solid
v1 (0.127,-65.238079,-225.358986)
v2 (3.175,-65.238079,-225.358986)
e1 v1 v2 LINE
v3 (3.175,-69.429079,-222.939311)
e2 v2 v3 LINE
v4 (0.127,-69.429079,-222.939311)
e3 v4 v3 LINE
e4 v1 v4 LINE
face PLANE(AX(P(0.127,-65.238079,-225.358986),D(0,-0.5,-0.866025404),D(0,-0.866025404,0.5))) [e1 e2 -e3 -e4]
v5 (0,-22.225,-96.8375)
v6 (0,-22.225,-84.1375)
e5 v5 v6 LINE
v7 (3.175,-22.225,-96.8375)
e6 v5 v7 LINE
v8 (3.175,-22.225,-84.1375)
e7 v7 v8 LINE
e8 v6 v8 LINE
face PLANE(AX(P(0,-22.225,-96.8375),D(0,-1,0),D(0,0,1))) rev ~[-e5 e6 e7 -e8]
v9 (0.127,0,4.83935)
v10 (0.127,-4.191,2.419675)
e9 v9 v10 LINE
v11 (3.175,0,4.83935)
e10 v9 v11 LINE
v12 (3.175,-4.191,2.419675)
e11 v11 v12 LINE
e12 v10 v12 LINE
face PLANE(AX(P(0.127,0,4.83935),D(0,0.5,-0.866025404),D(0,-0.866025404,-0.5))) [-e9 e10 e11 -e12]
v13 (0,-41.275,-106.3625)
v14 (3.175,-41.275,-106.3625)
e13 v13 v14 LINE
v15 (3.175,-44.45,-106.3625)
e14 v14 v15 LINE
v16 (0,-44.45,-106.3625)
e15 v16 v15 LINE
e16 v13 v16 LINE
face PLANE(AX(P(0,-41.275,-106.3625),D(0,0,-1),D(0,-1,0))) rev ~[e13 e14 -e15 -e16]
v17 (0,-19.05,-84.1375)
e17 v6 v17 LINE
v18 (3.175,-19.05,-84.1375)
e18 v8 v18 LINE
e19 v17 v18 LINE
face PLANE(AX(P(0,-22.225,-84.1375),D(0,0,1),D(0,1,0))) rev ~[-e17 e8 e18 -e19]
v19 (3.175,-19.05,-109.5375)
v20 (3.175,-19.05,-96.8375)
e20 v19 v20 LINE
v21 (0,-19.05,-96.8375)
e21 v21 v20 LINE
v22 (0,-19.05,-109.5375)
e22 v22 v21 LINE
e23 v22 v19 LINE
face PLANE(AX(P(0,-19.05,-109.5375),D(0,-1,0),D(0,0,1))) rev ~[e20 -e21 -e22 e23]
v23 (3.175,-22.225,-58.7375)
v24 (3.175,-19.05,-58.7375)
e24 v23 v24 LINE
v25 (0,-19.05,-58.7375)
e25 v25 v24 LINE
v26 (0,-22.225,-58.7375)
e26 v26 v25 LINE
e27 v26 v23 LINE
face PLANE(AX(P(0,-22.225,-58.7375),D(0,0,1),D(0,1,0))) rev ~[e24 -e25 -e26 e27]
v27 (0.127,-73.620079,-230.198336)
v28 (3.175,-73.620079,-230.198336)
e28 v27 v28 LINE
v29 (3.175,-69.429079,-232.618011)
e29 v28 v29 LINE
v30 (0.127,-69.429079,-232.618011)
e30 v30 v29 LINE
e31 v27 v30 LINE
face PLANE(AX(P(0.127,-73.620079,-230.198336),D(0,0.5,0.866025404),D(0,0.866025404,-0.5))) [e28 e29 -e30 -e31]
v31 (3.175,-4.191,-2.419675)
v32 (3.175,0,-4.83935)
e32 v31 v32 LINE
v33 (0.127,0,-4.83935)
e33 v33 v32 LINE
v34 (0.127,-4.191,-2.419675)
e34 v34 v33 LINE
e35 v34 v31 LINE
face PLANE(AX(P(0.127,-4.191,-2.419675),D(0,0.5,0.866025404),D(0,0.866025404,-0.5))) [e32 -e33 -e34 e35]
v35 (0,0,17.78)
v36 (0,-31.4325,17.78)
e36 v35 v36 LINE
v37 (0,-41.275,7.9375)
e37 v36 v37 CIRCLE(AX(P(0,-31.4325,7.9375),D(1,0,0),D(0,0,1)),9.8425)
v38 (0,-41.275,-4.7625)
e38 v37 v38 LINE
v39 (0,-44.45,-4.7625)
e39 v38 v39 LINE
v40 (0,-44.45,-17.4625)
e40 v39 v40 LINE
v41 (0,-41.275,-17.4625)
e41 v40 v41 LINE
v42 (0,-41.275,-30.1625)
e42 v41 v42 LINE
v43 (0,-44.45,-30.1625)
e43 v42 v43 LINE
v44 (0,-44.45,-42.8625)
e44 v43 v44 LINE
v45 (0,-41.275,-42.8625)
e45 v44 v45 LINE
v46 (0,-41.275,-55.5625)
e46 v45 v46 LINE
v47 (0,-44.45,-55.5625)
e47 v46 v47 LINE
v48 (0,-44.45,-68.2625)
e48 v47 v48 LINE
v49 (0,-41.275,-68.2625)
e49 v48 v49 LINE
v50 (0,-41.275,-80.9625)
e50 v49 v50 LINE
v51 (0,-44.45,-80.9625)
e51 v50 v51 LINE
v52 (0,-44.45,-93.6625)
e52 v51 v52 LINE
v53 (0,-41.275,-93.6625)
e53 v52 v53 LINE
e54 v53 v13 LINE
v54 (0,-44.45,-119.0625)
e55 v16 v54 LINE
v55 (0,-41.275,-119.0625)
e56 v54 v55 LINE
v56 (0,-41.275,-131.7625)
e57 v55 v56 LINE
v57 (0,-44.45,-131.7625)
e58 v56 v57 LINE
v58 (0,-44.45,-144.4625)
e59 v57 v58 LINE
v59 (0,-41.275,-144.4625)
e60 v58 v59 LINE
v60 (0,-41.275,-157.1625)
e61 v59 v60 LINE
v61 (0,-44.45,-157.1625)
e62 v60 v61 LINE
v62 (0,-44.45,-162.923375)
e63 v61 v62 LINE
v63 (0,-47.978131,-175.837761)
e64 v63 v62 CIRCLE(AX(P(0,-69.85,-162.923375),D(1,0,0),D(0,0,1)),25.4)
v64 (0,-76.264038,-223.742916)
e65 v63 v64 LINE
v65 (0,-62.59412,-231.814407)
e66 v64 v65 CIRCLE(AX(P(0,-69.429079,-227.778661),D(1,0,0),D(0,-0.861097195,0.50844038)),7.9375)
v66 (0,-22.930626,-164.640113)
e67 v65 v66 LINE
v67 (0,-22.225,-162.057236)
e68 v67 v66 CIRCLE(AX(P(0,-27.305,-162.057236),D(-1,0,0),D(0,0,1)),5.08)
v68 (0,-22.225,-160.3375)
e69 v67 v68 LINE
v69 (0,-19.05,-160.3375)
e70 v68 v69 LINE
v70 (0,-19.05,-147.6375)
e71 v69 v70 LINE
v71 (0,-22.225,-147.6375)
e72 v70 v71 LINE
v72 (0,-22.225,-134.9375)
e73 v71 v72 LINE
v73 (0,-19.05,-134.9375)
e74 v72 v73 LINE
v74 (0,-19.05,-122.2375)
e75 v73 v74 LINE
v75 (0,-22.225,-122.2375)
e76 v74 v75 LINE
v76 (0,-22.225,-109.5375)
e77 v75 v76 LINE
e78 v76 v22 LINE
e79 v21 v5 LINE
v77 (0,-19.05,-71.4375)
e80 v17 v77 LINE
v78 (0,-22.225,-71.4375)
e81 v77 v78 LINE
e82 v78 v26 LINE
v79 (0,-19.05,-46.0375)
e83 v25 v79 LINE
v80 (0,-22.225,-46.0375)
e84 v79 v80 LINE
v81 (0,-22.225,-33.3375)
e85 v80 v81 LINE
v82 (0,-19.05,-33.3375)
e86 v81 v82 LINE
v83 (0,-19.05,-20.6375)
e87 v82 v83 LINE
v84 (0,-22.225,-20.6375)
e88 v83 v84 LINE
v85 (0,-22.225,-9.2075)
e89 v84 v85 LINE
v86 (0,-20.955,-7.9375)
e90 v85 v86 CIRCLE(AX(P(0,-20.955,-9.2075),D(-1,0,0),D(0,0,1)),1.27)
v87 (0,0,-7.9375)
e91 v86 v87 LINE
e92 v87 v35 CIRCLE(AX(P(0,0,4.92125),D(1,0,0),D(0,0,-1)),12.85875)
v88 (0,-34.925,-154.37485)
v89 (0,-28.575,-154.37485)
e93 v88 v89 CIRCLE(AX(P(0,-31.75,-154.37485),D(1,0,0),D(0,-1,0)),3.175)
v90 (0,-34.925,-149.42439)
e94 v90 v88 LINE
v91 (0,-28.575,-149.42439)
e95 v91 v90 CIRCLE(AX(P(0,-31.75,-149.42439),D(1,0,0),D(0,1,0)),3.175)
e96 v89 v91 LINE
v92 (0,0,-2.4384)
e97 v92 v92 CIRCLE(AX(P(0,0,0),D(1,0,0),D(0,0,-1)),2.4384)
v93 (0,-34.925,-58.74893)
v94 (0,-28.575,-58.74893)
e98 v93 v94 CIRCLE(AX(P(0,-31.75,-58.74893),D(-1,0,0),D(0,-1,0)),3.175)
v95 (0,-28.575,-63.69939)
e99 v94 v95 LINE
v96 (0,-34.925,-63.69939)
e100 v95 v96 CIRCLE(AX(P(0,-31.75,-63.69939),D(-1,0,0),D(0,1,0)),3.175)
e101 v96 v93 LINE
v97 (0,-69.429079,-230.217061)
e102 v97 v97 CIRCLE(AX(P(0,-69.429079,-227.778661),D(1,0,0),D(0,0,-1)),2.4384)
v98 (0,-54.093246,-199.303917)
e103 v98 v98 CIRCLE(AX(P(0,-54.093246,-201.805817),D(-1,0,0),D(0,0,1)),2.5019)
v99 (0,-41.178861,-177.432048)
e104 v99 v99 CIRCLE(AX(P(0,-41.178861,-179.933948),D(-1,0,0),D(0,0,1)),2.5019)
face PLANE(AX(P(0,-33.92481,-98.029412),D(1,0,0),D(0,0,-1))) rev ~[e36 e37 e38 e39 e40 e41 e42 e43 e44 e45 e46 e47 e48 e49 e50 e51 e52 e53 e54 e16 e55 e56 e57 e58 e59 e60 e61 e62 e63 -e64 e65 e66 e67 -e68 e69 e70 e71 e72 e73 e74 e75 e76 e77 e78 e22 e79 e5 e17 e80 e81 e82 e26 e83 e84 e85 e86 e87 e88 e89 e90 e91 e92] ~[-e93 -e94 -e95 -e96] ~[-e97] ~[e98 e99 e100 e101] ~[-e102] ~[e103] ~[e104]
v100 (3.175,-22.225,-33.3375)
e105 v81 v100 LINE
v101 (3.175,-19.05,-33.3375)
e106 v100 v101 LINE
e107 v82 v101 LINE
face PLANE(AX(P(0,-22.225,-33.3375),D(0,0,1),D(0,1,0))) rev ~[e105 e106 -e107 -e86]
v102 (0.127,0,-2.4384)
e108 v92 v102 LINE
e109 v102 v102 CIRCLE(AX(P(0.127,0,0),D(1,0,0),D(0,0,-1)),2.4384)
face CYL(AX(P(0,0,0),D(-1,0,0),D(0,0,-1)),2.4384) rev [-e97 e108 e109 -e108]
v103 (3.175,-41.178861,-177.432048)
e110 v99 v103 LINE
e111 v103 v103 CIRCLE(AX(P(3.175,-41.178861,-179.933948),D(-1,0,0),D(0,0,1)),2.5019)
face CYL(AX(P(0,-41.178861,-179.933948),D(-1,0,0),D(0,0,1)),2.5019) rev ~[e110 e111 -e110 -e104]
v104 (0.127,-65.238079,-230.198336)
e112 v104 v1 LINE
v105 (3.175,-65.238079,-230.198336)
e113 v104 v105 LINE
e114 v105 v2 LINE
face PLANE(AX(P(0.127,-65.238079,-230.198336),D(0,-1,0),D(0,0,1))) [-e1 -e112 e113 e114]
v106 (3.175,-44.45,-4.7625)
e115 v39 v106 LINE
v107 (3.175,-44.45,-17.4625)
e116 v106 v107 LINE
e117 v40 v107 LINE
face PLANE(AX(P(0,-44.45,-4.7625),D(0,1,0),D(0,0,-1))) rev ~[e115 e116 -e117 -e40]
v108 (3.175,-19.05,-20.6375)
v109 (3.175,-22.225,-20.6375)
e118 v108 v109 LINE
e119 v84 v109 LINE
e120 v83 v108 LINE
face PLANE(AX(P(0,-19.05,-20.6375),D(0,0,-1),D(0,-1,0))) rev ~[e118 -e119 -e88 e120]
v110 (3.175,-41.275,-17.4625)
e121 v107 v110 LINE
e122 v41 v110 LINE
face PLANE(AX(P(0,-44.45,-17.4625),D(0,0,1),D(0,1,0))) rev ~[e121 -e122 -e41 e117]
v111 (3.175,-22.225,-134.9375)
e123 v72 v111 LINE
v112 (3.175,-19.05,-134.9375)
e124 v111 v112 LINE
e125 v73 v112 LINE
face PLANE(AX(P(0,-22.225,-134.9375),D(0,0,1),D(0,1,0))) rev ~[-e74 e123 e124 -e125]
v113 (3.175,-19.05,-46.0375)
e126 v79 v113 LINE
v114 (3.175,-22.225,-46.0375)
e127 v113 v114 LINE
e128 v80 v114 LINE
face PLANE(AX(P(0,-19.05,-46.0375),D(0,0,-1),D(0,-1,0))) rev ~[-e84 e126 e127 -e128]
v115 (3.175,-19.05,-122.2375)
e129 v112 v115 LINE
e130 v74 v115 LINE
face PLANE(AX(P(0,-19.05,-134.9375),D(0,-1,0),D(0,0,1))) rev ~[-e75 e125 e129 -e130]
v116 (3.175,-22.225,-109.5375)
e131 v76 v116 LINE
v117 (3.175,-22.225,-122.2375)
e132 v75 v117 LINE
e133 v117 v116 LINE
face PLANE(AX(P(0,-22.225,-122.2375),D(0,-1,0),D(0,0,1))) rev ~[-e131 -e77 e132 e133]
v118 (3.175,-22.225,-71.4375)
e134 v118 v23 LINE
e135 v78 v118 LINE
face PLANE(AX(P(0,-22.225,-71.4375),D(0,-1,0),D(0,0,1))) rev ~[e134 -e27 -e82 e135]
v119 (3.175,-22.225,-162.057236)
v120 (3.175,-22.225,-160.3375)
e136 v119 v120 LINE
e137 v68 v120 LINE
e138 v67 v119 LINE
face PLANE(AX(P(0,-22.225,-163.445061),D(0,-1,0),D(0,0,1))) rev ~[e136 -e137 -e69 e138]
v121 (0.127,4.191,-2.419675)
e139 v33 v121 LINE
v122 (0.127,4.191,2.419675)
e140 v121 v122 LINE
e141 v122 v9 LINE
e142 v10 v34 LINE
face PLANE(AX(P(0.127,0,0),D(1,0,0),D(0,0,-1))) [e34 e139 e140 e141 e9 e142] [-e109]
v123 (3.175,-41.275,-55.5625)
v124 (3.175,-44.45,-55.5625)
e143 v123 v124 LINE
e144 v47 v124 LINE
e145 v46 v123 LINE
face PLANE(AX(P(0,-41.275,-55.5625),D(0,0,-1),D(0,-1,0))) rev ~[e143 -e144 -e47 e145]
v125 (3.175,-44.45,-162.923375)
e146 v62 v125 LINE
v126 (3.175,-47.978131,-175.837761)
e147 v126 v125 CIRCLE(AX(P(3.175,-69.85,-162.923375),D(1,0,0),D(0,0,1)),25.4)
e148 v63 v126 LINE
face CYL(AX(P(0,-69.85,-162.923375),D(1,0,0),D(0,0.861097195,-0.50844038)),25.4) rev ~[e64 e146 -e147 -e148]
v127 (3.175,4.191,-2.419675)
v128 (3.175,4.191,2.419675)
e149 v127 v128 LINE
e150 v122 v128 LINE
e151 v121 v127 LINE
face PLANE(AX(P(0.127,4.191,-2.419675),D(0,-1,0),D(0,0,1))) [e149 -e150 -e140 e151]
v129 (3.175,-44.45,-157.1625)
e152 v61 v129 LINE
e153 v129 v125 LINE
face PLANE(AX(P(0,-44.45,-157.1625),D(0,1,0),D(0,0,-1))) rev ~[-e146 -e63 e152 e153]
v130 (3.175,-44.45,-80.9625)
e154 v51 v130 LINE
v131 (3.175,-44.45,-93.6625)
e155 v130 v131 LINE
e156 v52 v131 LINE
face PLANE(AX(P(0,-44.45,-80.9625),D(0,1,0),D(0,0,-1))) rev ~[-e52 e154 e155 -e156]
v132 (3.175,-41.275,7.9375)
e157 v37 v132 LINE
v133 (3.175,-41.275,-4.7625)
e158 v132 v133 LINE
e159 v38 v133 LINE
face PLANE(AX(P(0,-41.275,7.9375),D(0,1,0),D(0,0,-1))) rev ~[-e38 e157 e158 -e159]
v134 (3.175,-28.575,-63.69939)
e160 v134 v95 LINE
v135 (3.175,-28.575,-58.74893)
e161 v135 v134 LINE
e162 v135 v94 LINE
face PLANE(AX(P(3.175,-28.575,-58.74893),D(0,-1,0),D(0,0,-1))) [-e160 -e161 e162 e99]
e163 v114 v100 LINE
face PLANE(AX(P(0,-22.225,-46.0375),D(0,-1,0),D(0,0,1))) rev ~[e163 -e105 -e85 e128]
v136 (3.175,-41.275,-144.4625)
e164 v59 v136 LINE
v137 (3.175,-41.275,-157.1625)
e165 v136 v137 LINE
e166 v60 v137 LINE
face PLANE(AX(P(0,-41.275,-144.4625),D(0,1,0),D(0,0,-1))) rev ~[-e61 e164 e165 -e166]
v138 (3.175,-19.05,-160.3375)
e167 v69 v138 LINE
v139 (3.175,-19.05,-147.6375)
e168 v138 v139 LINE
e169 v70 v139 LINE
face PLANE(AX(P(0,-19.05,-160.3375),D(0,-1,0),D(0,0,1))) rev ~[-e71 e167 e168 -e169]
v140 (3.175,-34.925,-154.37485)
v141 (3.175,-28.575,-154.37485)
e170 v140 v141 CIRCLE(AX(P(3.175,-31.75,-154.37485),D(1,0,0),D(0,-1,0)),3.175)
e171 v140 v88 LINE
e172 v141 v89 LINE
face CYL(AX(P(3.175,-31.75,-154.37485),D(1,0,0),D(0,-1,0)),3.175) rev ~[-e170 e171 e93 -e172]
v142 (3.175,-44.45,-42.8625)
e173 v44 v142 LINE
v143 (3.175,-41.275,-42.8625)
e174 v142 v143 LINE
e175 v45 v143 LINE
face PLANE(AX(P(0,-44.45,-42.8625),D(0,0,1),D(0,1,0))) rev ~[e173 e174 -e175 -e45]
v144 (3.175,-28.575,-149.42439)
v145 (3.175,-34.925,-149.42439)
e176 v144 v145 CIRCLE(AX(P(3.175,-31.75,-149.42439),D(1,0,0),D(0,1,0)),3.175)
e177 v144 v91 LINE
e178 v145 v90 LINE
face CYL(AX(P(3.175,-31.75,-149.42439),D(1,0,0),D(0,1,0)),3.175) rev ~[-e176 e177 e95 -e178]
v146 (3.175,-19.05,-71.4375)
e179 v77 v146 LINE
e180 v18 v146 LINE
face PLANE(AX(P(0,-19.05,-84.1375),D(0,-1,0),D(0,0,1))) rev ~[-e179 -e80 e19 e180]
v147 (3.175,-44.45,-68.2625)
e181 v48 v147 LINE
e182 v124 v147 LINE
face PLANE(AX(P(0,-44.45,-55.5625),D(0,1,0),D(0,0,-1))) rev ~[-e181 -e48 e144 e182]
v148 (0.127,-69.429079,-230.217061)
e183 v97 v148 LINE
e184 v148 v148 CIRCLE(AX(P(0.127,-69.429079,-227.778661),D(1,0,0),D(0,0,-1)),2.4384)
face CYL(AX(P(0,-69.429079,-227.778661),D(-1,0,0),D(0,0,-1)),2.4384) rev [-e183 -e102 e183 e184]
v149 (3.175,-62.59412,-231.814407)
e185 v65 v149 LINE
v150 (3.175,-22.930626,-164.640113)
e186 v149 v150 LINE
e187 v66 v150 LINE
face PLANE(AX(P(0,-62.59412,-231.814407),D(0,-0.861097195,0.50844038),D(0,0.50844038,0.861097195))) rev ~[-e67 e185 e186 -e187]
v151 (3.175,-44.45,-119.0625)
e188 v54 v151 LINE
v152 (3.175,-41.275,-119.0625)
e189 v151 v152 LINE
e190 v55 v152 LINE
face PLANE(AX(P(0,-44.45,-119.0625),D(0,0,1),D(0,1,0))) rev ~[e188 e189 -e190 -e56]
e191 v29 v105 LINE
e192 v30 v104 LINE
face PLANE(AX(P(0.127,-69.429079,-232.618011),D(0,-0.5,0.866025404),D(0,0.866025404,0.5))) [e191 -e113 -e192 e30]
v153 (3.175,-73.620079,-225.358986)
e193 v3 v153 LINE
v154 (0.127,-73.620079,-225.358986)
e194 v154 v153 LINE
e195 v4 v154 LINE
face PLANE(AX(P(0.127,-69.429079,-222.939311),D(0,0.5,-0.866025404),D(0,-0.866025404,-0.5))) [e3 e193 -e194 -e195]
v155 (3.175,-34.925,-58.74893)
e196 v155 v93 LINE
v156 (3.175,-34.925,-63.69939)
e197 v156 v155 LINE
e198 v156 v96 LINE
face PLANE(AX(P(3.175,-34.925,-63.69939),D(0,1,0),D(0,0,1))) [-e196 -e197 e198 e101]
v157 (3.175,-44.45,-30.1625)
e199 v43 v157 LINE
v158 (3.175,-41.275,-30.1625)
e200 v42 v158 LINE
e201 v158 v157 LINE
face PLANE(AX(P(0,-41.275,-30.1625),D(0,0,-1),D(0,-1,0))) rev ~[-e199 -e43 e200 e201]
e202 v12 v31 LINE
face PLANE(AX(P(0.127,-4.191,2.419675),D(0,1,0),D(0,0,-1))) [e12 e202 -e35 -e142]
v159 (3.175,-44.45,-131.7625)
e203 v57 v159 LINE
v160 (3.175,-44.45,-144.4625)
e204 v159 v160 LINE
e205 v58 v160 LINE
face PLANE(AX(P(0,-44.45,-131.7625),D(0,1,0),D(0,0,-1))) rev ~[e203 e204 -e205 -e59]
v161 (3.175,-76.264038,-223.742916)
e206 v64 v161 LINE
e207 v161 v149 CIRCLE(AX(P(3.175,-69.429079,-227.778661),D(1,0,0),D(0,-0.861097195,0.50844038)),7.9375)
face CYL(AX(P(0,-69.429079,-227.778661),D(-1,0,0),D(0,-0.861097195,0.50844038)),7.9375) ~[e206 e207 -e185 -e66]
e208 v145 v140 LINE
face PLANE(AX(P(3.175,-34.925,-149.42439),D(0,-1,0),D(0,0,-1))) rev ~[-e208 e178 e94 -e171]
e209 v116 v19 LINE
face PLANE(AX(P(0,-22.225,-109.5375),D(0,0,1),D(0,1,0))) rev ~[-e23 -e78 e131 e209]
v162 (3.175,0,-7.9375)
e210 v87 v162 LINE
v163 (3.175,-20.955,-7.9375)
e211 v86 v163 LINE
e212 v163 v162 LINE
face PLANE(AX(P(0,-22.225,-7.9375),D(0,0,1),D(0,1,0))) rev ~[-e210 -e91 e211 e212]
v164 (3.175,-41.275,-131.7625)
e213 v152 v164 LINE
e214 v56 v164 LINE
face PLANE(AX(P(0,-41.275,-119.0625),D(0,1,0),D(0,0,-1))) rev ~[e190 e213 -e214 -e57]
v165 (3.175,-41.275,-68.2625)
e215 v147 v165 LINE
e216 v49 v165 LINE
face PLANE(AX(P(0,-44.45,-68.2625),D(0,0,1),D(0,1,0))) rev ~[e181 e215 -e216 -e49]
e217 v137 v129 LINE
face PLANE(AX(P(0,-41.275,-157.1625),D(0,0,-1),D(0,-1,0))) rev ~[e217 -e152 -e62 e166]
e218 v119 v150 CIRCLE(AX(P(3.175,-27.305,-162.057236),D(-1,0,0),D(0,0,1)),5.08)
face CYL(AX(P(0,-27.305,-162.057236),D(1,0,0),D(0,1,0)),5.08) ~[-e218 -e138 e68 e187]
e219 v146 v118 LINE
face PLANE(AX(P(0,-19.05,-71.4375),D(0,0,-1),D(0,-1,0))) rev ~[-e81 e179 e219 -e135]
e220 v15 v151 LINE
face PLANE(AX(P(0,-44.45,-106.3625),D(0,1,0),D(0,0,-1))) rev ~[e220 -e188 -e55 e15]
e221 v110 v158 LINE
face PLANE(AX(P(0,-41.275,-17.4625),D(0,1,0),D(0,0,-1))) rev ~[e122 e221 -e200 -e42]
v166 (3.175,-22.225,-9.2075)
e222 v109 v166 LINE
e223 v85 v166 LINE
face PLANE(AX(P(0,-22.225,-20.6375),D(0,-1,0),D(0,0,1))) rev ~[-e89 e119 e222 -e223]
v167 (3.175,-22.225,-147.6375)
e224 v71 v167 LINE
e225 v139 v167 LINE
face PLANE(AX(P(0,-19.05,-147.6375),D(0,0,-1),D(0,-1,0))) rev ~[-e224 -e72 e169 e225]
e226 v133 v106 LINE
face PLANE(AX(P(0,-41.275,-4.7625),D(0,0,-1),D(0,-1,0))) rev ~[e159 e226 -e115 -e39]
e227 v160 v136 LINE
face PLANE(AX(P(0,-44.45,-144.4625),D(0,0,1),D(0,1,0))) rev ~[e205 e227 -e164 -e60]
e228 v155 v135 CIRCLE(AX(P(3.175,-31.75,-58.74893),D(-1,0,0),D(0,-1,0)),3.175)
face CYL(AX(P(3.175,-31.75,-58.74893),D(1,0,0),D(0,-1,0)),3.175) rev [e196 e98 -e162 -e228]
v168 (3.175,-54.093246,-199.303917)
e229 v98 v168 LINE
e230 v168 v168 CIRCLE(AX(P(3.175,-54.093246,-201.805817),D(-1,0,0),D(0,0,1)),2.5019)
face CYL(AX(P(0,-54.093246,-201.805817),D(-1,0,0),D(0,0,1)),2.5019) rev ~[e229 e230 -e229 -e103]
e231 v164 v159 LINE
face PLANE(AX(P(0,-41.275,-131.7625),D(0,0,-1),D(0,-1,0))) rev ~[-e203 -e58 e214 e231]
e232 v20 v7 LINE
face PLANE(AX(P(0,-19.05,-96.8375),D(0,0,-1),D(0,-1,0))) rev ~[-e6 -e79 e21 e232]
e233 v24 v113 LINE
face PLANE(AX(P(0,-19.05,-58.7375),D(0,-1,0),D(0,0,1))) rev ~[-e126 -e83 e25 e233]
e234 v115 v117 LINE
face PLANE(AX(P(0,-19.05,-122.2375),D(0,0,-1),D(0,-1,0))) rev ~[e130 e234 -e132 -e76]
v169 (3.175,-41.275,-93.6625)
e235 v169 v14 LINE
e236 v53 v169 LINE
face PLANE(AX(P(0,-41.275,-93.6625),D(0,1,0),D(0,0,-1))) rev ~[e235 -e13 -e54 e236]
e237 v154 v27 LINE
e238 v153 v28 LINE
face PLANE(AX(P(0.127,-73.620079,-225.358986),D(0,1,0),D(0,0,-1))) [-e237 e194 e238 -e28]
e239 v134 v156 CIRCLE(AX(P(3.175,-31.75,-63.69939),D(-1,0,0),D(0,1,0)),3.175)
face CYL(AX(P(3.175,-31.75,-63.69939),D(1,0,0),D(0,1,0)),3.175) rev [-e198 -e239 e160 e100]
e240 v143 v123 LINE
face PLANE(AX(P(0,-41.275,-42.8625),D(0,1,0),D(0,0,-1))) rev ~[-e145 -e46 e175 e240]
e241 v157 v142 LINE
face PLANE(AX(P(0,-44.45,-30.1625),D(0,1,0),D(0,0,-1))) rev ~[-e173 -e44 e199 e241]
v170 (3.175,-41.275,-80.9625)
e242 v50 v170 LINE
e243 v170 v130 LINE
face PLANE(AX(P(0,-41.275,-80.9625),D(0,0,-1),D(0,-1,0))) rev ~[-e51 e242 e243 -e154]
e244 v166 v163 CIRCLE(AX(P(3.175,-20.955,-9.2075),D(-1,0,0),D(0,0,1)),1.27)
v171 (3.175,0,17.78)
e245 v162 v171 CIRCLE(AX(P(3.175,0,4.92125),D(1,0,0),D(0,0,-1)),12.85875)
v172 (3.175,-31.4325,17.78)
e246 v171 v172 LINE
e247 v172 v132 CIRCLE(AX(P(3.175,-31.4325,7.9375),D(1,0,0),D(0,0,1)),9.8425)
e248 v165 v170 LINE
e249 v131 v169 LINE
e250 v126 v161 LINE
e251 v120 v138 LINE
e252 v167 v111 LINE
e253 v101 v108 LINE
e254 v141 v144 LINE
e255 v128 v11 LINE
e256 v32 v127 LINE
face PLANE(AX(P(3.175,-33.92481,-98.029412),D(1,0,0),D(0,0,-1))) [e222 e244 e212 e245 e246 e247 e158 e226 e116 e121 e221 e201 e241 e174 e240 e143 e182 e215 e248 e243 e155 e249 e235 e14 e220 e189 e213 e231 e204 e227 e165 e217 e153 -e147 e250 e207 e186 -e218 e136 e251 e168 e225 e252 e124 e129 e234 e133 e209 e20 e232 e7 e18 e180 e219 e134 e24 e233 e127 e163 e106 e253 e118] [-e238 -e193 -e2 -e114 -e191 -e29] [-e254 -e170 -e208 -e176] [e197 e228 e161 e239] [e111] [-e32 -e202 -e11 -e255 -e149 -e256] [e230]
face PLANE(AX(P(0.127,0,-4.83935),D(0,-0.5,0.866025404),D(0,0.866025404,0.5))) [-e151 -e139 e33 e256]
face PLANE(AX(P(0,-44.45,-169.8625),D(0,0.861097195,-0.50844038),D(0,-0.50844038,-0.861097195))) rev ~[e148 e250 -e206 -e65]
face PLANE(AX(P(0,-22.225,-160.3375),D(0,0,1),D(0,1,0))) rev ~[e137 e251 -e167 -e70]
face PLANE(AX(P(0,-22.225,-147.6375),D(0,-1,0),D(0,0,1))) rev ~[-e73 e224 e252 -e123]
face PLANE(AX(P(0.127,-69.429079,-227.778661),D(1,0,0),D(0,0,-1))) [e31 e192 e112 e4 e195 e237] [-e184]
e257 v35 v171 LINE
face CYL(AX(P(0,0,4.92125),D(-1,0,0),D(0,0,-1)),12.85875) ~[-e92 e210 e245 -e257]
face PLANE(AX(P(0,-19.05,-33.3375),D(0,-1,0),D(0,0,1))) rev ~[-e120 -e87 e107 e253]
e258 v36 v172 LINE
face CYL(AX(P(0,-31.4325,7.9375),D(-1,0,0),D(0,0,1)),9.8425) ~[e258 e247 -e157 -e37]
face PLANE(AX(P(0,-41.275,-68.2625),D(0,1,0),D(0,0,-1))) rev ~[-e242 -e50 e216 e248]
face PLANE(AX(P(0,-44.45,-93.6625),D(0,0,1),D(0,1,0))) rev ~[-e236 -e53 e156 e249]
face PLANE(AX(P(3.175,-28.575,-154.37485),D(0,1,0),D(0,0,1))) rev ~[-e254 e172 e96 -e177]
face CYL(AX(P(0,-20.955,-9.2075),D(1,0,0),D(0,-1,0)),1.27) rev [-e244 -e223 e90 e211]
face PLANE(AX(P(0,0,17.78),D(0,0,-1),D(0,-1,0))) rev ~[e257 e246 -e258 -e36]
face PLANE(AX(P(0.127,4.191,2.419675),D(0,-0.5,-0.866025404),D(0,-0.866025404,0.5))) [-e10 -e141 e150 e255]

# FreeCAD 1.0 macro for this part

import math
import FreeCAD as App
import Part
import Sketcher
Q = App.Units.Quantity


def edges_at(feature, points):
    """Names of the edges that pass closest to the given points."""
    edges = feature.Shape.Edges
    near = lambda p: min(range(len(edges)), key=lambda i: edges[i].distToShape(Part.Vertex(*p))[0])
    return sorted({f"Edge{near(p) + 1}" for p in points})


def add_polygon(sketch, points):
    """Adds a closed chain of lines whose ends are joined by coincident constraints."""
    first, n = sketch.GeometryCount, len(points)
    for a, b in zip(points, points[1:] + points[:1]):
        sketch.addGeometry(Part.LineSegment(App.Vector(*a, 0), App.Vector(*b, 0)), False)
    for i in range(n):
        sketch.addConstraint(Sketcher.Constraint("Coincident", first + i, 2, first + (i + 1) % n, 1))

doc = App.newDocument("Part")
params = doc.addObject("Spreadsheet::Sheet", "Params")
for row, (alias, value) in enumerate([
    ("sketch1_diameter", "0.192 in"),
    ("sketch1_height", "0.5 in"),
    ("sketch1_radius", "0.3125 in"),
    ("sketch1_width", "0.125 in"),
    ("sketch1_width2", "0.875 in"),
    ("pad1_length", "0.125 in"),
    ("sketch2_diameter", "0.192 in"),
    ("pocket1_length", "0.12 in"),
    ("sketch3_diameter", "0.192 in"),
    ("pocket2_length", "0.12 in"),
    ("sketch4_diameter", "0.197 in"),
    ("sketch5_radius", "0.125 in"),
    ("pocket4_length", "0.125 in"),
    ("fillet_radius", "1 in"),
    ("fillet2_radius", "0.05 in"),
    ("fillet3_radius", "0.2 in"),
], start=1):
    params.set(f"A{row}", alias)
    params.set(f"B{row}", "=" + value)
    params.setAlias(f"B{row}", alias)

body = doc.addObject("PartDesign::Body", "Body")

# Sketch on YZ plane
sketch1 = body.newObject("Sketcher::SketchObject", "Sketch")
sketch1.AttachmentSupport = (doc.getObject("YZ_Plane"), [""])
sketch1.MapMode = "FlatFace"
sketch1.addGeometry([
    Part.ArcOfCircle(Part.Circle(App.Vector(-69.4, -227.8, 0), App.Vector(0, 0, 1), 7.9), math.radians(149), math.radians(329)),  # 0
    Part.LineSegment(App.Vector(-62.6, -231.8, 0), App.Vector(-22.2, -163.4, 0)),  # 1
    Part.LineSegment(App.Vector(-22.2, -163.4, 0), App.Vector(-22.2, -160.3, 0)),  # 2
    Part.LineSegment(App.Vector(-22.2, -160.3, 0), App.Vector(-19.1, -160.3, 0)),  # 3
    Part.LineSegment(App.Vector(-19.1, -160.3, 0), App.Vector(-19.1, -147.6, 0)),  # 4
    Part.LineSegment(App.Vector(-19.1, -147.6, 0), App.Vector(-22.2, -147.6, 0)),  # 5
    Part.LineSegment(App.Vector(-22.2, -147.6, 0), App.Vector(-22.2, -134.9, 0)),  # 6
    Part.LineSegment(App.Vector(-22.2, -134.9, 0), App.Vector(-19.1, -134.9, 0)),  # 7
    Part.LineSegment(App.Vector(-19.1, -134.9, 0), App.Vector(-19.1, -122.2, 0)),  # 8
    Part.LineSegment(App.Vector(-19.1, -122.2, 0), App.Vector(-22.2, -122.2, 0)),  # 9
    Part.LineSegment(App.Vector(-22.2, -122.2, 0), App.Vector(-22.2, -109.5, 0)),  # 10
    Part.LineSegment(App.Vector(-22.2, -109.5, 0), App.Vector(-19.1, -109.5, 0)),  # 11
    Part.LineSegment(App.Vector(-19.1, -109.5, 0), App.Vector(-19.1, -96.8, 0)),  # 12
    Part.LineSegment(App.Vector(-19.1, -96.8, 0), App.Vector(-22.2, -96.8, 0)),  # 13
    Part.LineSegment(App.Vector(-22.2, -96.8, 0), App.Vector(-22.2, -84.1, 0)),  # 14
    Part.LineSegment(App.Vector(-22.2, -84.1, 0), App.Vector(-19.1, -84.1, 0)),  # 15
    Part.LineSegment(App.Vector(-19.1, -84.1, 0), App.Vector(-19.1, -71.4, 0)),  # 16
    Part.LineSegment(App.Vector(-19.1, -71.4, 0), App.Vector(-22.2, -71.4, 0)),  # 17
    Part.LineSegment(App.Vector(-22.2, -71.4, 0), App.Vector(-22.2, -58.7, 0)),  # 18
    Part.LineSegment(App.Vector(-22.2, -58.7, 0), App.Vector(-19.1, -58.7, 0)),  # 19
    Part.LineSegment(App.Vector(-19.1, -58.7, 0), App.Vector(-19.1, -46, 0)),  # 20
    Part.LineSegment(App.Vector(-19.1, -46, 0), App.Vector(-22.2, -46, 0)),  # 21
    Part.LineSegment(App.Vector(-22.2, -46, 0), App.Vector(-22.2, -33.3, 0)),  # 22
    Part.LineSegment(App.Vector(-22.2, -33.3, 0), App.Vector(-19.1, -33.3, 0)),  # 23
    Part.LineSegment(App.Vector(-19.1, -33.3, 0), App.Vector(-19.1, -20.6, 0)),  # 24
    Part.LineSegment(App.Vector(-19.1, -20.6, 0), App.Vector(-22.2, -20.6, 0)),  # 25
    Part.LineSegment(App.Vector(-22.2, -20.6, 0), App.Vector(-22.2, -7.9, 0)),  # 26
    Part.LineSegment(App.Vector(-22.2, -7.9, 0), App.Vector(0, -7.9, 0)),  # 27
    Part.ArcOfCircle(Part.Circle(App.Vector(0, 4.9, 0), App.Vector(0, 0, 1), 12.9), math.radians(-90), math.radians(90)),  # 28
    Part.LineSegment(App.Vector(0, 17.8, 0), App.Vector(-31.4, 17.8, 0)),  # 29
    Part.ArcOfCircle(Part.Circle(App.Vector(-31.4, 7.9, 0), App.Vector(0, 0, 1), 9.8), math.radians(90), math.radians(180)),  # 30
    Part.LineSegment(App.Vector(-41.3, 7.9, 0), App.Vector(-41.3, -4.8, 0)),  # 31
    Part.LineSegment(App.Vector(-41.3, -4.8, 0), App.Vector(-44.5, -4.8, 0)),  # 32
    Part.LineSegment(App.Vector(-44.5, -4.8, 0), App.Vector(-44.5, -17.5, 0)),  # 33
    Part.LineSegment(App.Vector(-44.5, -17.5, 0), App.Vector(-41.3, -17.5, 0)),  # 34
    Part.LineSegment(App.Vector(-41.3, -17.5, 0), App.Vector(-41.3, -30.2, 0)),  # 35
    Part.LineSegment(App.Vector(-41.3, -30.2, 0), App.Vector(-44.5, -30.2, 0)),  # 36
    Part.LineSegment(App.Vector(-44.5, -30.2, 0), App.Vector(-44.5, -42.9, 0)),  # 37
    Part.LineSegment(App.Vector(-44.5, -42.9, 0), App.Vector(-41.3, -42.9, 0)),  # 38
    Part.LineSegment(App.Vector(-41.3, -42.9, 0), App.Vector(-41.3, -55.6, 0)),  # 39
    Part.LineSegment(App.Vector(-41.3, -55.6, 0), App.Vector(-44.5, -55.6, 0)),  # 40
    Part.LineSegment(App.Vector(-44.5, -55.6, 0), App.Vector(-44.5, -68.3, 0)),  # 41
    Part.LineSegment(App.Vector(-44.5, -68.3, 0), App.Vector(-41.3, -68.3, 0)),  # 42
    Part.LineSegment(App.Vector(-41.3, -68.3, 0), App.Vector(-41.3, -81, 0)),  # 43
    Part.LineSegment(App.Vector(-41.3, -81, 0), App.Vector(-44.5, -81, 0)),  # 44
    Part.LineSegment(App.Vector(-44.5, -81, 0), App.Vector(-44.5, -93.7, 0)),  # 45
    Part.LineSegment(App.Vector(-44.5, -93.7, 0), App.Vector(-41.3, -93.7, 0)),  # 46
    Part.LineSegment(App.Vector(-41.3, -93.7, 0), App.Vector(-41.3, -106.4, 0)),  # 47
    Part.LineSegment(App.Vector(-41.3, -106.4, 0), App.Vector(-44.5, -106.4, 0)),  # 48
    Part.LineSegment(App.Vector(-44.5, -106.4, 0), App.Vector(-44.5, -119.1, 0)),  # 49
    Part.LineSegment(App.Vector(-44.5, -119.1, 0), App.Vector(-41.3, -119.1, 0)),  # 50
    Part.LineSegment(App.Vector(-41.3, -119.1, 0), App.Vector(-41.3, -131.8, 0)),  # 51
    Part.LineSegment(App.Vector(-41.3, -131.8, 0), App.Vector(-44.5, -131.8, 0)),  # 52
    Part.LineSegment(App.Vector(-44.5, -131.8, 0), App.Vector(-44.5, -144.5, 0)),  # 53
    Part.LineSegment(App.Vector(-44.5, -144.5, 0), App.Vector(-41.3, -144.5, 0)),  # 54
    Part.LineSegment(App.Vector(-41.3, -144.5, 0), App.Vector(-41.3, -157.2, 0)),  # 55
    Part.LineSegment(App.Vector(-41.3, -157.2, 0), App.Vector(-44.5, -157.2, 0)),  # 56
    Part.LineSegment(App.Vector(-44.5, -157.2, 0), App.Vector(-44.5, -169.9, 0)),  # 57
    Part.LineSegment(App.Vector(-44.5, -169.9, 0), App.Vector(-76.3, -223.7, 0)),  # 58
    Part.Circle(App.Vector(-69.4, -227.8, 0), App.Vector(0, 0, 1), 2.4),  # 59
    Part.Circle(App.Vector(0, 0, 0), App.Vector(0, 0, 1), 2.4),  # 60
], False)
sketch1.addConstraint([
    Sketcher.Constraint("Tangent", 0, 2, 1, 1),
    Sketcher.Constraint("Coincident", 1, 2, 2, 1),
    Sketcher.Constraint("Coincident", 2, 2, 3, 1),
    Sketcher.Constraint("Coincident", 3, 2, 4, 1),
    Sketcher.Constraint("Coincident", 4, 2, 5, 1),
    Sketcher.Constraint("Coincident", 5, 2, 6, 1),
    Sketcher.Constraint("Coincident", 6, 2, 7, 1),
    Sketcher.Constraint("Coincident", 7, 2, 8, 1),
    Sketcher.Constraint("Coincident", 8, 2, 9, 1),
    Sketcher.Constraint("Coincident", 9, 2, 10, 1),
    Sketcher.Constraint("Coincident", 10, 2, 11, 1),
    Sketcher.Constraint("Coincident", 11, 2, 12, 1),
    Sketcher.Constraint("Coincident", 12, 2, 13, 1),
    Sketcher.Constraint("Coincident", 13, 2, 14, 1),
    Sketcher.Constraint("Coincident", 14, 2, 15, 1),
    Sketcher.Constraint("Coincident", 15, 2, 16, 1),
    Sketcher.Constraint("Coincident", 16, 2, 17, 1),
    Sketcher.Constraint("Coincident", 17, 2, 18, 1),
    Sketcher.Constraint("Coincident", 18, 2, 19, 1),
    Sketcher.Constraint("Coincident", 19, 2, 20, 1),
    Sketcher.Constraint("Coincident", 20, 2, 21, 1),
    Sketcher.Constraint("Coincident", 21, 2, 22, 1),
    Sketcher.Constraint("Coincident", 22, 2, 23, 1),
    Sketcher.Constraint("Coincident", 23, 2, 24, 1),
    Sketcher.Constraint("Coincident", 24, 2, 25, 1),
    Sketcher.Constraint("Coincident", 25, 2, 26, 1),
    Sketcher.Constraint("Coincident", 26, 2, 27, 1),
    Sketcher.Constraint("Tangent", 27, 2, 28, 1),
    Sketcher.Constraint("Tangent", 28, 2, 29, 1),
    Sketcher.Constraint("Tangent", 29, 2, 30, 1),
    Sketcher.Constraint("Tangent", 30, 2, 31, 1),
    Sketcher.Constraint("Coincident", 31, 2, 32, 1),
    Sketcher.Constraint("Coincident", 32, 2, 33, 1),
    Sketcher.Constraint("Coincident", 33, 2, 34, 1),
    Sketcher.Constraint("Coincident", 34, 2, 35, 1),
    Sketcher.Constraint("Coincident", 35, 2, 36, 1),
    Sketcher.Constraint("Coincident", 36, 2, 37, 1),
    Sketcher.Constraint("Coincident", 37, 2, 38, 1),
    Sketcher.Constraint("Coincident", 38, 2, 39, 1),
    Sketcher.Constraint("Coincident", 39, 2, 40, 1),
    Sketcher.Constraint("Coincident", 40, 2, 41, 1),
    Sketcher.Constraint("Coincident", 41, 2, 42, 1),
    Sketcher.Constraint("Coincident", 42, 2, 43, 1),
    Sketcher.Constraint("Coincident", 43, 2, 44, 1),
    Sketcher.Constraint("Coincident", 44, 2, 45, 1),
    Sketcher.Constraint("Coincident", 45, 2, 46, 1),
    Sketcher.Constraint("Coincident", 46, 2, 47, 1),
    Sketcher.Constraint("Coincident", 47, 2, 48, 1),
    Sketcher.Constraint("Coincident", 48, 2, 49, 1),
    Sketcher.Constraint("Coincident", 49, 2, 50, 1),
    Sketcher.Constraint("Coincident", 50, 2, 51, 1),
    Sketcher.Constraint("Coincident", 51, 2, 52, 1),
    Sketcher.Constraint("Coincident", 52, 2, 53, 1),
    Sketcher.Constraint("Coincident", 53, 2, 54, 1),
    Sketcher.Constraint("Coincident", 54, 2, 55, 1),
    Sketcher.Constraint("Coincident", 55, 2, 56, 1),
    Sketcher.Constraint("Coincident", 56, 2, 57, 1),
    Sketcher.Constraint("Coincident", 57, 2, 58, 1),
    Sketcher.Constraint("Tangent", 58, 2, 0, 1),
    Sketcher.Constraint("Vertical", 2),
    Sketcher.Constraint("Horizontal", 3),
    Sketcher.Constraint("Vertical", 4),
    Sketcher.Constraint("Horizontal", 5),
    Sketcher.Constraint("Vertical", 6),
    Sketcher.Constraint("Horizontal", 7),
    Sketcher.Constraint("Vertical", 8),
    Sketcher.Constraint("Horizontal", 9),
    Sketcher.Constraint("Vertical", 10),
    Sketcher.Constraint("Horizontal", 11),
    Sketcher.Constraint("Vertical", 12),
    Sketcher.Constraint("Horizontal", 13),
    Sketcher.Constraint("Vertical", 14),
    Sketcher.Constraint("Horizontal", 15),
    Sketcher.Constraint("Vertical", 16),
    Sketcher.Constraint("Horizontal", 17),
    Sketcher.Constraint("Vertical", 18),
    Sketcher.Constraint("Horizontal", 19),
    Sketcher.Constraint("Vertical", 20),
    Sketcher.Constraint("Horizontal", 21),
    Sketcher.Constraint("Vertical", 22),
    Sketcher.Constraint("Horizontal", 23),
    Sketcher.Constraint("Vertical", 24),
    Sketcher.Constraint("Horizontal", 25),
    Sketcher.Constraint("Vertical", 26),
    Sketcher.Constraint("Horizontal", 27),
    Sketcher.Constraint("Horizontal", 29),
    Sketcher.Constraint("Vertical", 31),
    Sketcher.Constraint("Horizontal", 32),
    Sketcher.Constraint("Vertical", 33),
    Sketcher.Constraint("Horizontal", 34),
    Sketcher.Constraint("Vertical", 35),
    Sketcher.Constraint("Horizontal", 36),
    Sketcher.Constraint("Vertical", 37),
    Sketcher.Constraint("Horizontal", 38),
    Sketcher.Constraint("Vertical", 39),
    Sketcher.Constraint("Horizontal", 40),
    Sketcher.Constraint("Vertical", 41),
    Sketcher.Constraint("Horizontal", 42),
    Sketcher.Constraint("Vertical", 43),
    Sketcher.Constraint("Horizontal", 44),
    Sketcher.Constraint("Vertical", 45),
    Sketcher.Constraint("Horizontal", 46),
    Sketcher.Constraint("Vertical", 47),
    Sketcher.Constraint("Horizontal", 48),
    Sketcher.Constraint("Vertical", 49),
    Sketcher.Constraint("Horizontal", 50),
    Sketcher.Constraint("Vertical", 51),
    Sketcher.Constraint("Horizontal", 52),
    Sketcher.Constraint("Vertical", 53),
    Sketcher.Constraint("Horizontal", 54),
    Sketcher.Constraint("Vertical", 55),
    Sketcher.Constraint("Horizontal", 56),
    Sketcher.Constraint("Vertical", 57),
    Sketcher.Constraint("Coincident", 60, 3, -1, 1),
    Sketcher.Constraint("Coincident", 59, 3, 0, 3),
    Sketcher.Constraint("Equal", 59, 60),
    Sketcher.Constraint("PointOnObject", 28, 3, -2),
    Sketcher.Constraint("Parallel", 1, 58),
    Sketcher.Constraint("Vertical", 2, 2, 5, 2),
    Sketcher.Constraint("Vertical", 4, 2, 7, 2),
    Sketcher.Constraint("Vertical", 6, 2, 9, 2),
    Sketcher.Constraint("Vertical", 8, 2, 11, 2),
    Sketcher.Constraint("Vertical", 10, 2, 13, 2),
    Sketcher.Constraint("Vertical", 12, 2, 15, 2),
    Sketcher.Constraint("Vertical", 14, 2, 17, 2),
    Sketcher.Constraint("Vertical", 16, 2, 19, 2),
    Sketcher.Constraint("Vertical", 18, 2, 21, 2),
    Sketcher.Constraint("Vertical", 20, 2, 23, 2),
    Sketcher.Constraint("Vertical", 22, 2, 25, 2),
    Sketcher.Constraint("Vertical", 31, 2, 34, 2),
    Sketcher.Constraint("Vertical", 33, 2, 36, 2),
    Sketcher.Constraint("Vertical", 35, 2, 38, 2),
    Sketcher.Constraint("Vertical", 37, 2, 40, 2),
    Sketcher.Constraint("Vertical", 39, 2, 42, 2),
    Sketcher.Constraint("Vertical", 41, 2, 44, 2),
    Sketcher.Constraint("Vertical", 43, 2, 46, 2),
    Sketcher.Constraint("Vertical", 45, 2, 48, 2),
    Sketcher.Constraint("Vertical", 47, 2, 50, 2),
    Sketcher.Constraint("Vertical", 49, 2, 52, 2),
    Sketcher.Constraint("Vertical", 51, 2, 54, 2),
    Sketcher.Constraint("Vertical", 53, 2, 56, 2),
    Sketcher.Constraint("Equal", 25, 32),
    Sketcher.Constraint("Equal", 4, 6),
    Sketcher.Constraint("Equal", 6, 8),
    Sketcher.Constraint("Equal", 8, 10),
    Sketcher.Constraint("Equal", 10, 12),
    Sketcher.Constraint("Equal", 12, 14),
    Sketcher.Constraint("Equal", 14, 16),
    Sketcher.Constraint("Equal", 16, 18),
    Sketcher.Constraint("Equal", 18, 20),
    Sketcher.Constraint("Equal", 20, 22),
    Sketcher.Constraint("Equal", 22, 24),
    Sketcher.Constraint("Equal", 24, 26),
    Sketcher.Constraint("Equal", 26, 31),
    Sketcher.Constraint("Equal", 31, 33),
    Sketcher.Constraint("Equal", 33, 35),
    Sketcher.Constraint("Equal", 35, 37),
    Sketcher.Constraint("Equal", 37, 39),
    Sketcher.Constraint("Equal", 39, 41),
    Sketcher.Constraint("Equal", 41, 43),
    Sketcher.Constraint("Equal", 43, 45),
    Sketcher.Constraint("Equal", 45, 47),
    Sketcher.Constraint("Equal", 47, 49),
    Sketcher.Constraint("Equal", 49, 51),
    Sketcher.Constraint("Equal", 51, 53),
    Sketcher.Constraint("Equal", 53, 55),
    Sketcher.Constraint("Equal", 55, 57),
    Sketcher.Constraint("Diameter", 59, Q("0.192 in")),
    Sketcher.Constraint("DistanceY", 4, 1, 4, 2, Q("0.5 in")),
    Sketcher.Constraint("Radius", 0, Q("0.3125 in")),
    Sketcher.Constraint("DistanceY", -1, 1, 28, 2, Q("0.7 in")),
    Sketcher.Constraint("Radius", 30, Q("0.3875 in")),
    Sketcher.Constraint("DistanceX", 3, 1, 3, 2, Q("0.125 in")),
    Sketcher.Constraint("DistanceX", 27, 1, 27, 2, Q("0.875 in")),
    Sketcher.Constraint("DistanceX", 32, 2, -1, 1, Q("1.75 in")),
    Sketcher.Constraint("Angle", 1, Q("59.44 deg")),
    Sketcher.Constraint("DistanceY", 2, 2, -1, 1, Q("6.3125 in")),
    Sketcher.Constraint("DistanceX", 0, 3, -1, 1, Q("69.429079 mm")),
])
sketch1.setExpression("Constraints[167]", "Params.sketch1_diameter")
sketch1.setExpression("Constraints[168]", "Params.sketch1_height")
sketch1.setExpression("Constraints[169]", "Params.sketch1_radius")
sketch1.setExpression("Constraints[172]", "Params.sketch1_width")
sketch1.setExpression("Constraints[173]", "Params.sketch1_width2")
pad1 = body.newObject("PartDesign::Pad", "Pad")
pad1.Profile = sketch1
pad1.setExpression("Length", "Params.pad1_length")

# Sketch on YZ plane
sketch2 = body.newObject("Sketcher::SketchObject", "Sketch001")
sketch2.AttachmentSupport = (doc.getObject("YZ_Plane"), [""])
sketch2.MapMode = "FlatFace"
sketch2.AttachmentOffset = App.Placement(App.Vector(0, 0, 0.005 * 25.4), App.Rotation())
add_polygon(sketch2, [(4.2, -2.4), (4.2, 2.4), (0, 4.8), (-4.2, 2.4), (-4.2, -2.4), (0, -4.8)])  # lines 0-5
sketch2.addGeometry(Part.Circle(App.Vector(0, 0, 0), App.Vector(0, 0, 1), 2.4), False)  # 6
sketch2.addConstraint([
    Sketcher.Constraint("Vertical", 0),
    Sketcher.Constraint("Vertical", 3),
    Sketcher.Constraint("Coincident", 6, 3, -1, 1),
    Sketcher.Constraint("Symmetric", 0, 2, 3, 2, -1, 1),
    Sketcher.Constraint("Symmetric", 1, 2, 4, 2, -1, 1),
    Sketcher.Constraint("PointOnObject", 1, 2, -2),
    Sketcher.Constraint("Parallel", 2, 5),
    Sketcher.Constraint("Horizontal", 0, 2, 2, 2),
    Sketcher.Constraint("Diameter", 6, Q("0.192 in")),
    Sketcher.Constraint("Angle", 1, Q("150 deg")),
    Sketcher.Constraint("DistanceX", 2, 2, 0, 2, Q("0.33 in")),
    Sketcher.Constraint("DistanceY", 0, 1, 0, 2, Q("4.83935 mm")),
])
sketch2.setExpression("Constraints[14]", "Params.sketch2_diameter")
pocket1 = body.newObject("PartDesign::Pocket", "Pocket")
pocket1.Profile = sketch2
pocket1.setExpression("Length", "Params.pocket1_length")
pocket1.Reversed = True

# Sketch on YZ plane
sketch3 = body.newObject("Sketcher::SketchObject", "Sketch002")
sketch3.AttachmentSupport = (doc.getObject("YZ_Plane"), [""])
sketch3.MapMode = "FlatFace"
sketch3.AttachmentOffset = App.Placement(App.Vector(0, 0, 0.005 * 25.4), App.Rotation())
add_polygon(sketch3, [(-65.2, -230.2), (-65.2, -225.4), (-69.4, -222.9), (-73.6, -225.4), (-73.6, -230.2), (-69.4, -232.6)])  # lines 0-5
sketch3.addGeometry(Part.Circle(App.Vector(-69.4, -227.8, 0), App.Vector(0, 0, 1), 2.4), False)  # 6
sketch3.addConstraint([
    Sketcher.Constraint("Vertical", 0),
    Sketcher.Constraint("Vertical", 3),
    Sketcher.Constraint("Parallel", 1, 4),
    Sketcher.Constraint("Parallel", 2, 5),
    Sketcher.Constraint("Horizontal", 0, 2, 2, 2),
    Sketcher.Constraint("Horizontal", 3, 2, 5, 2),
    Sketcher.Constraint("Vertical", 6, 3, 1, 2),
    Sketcher.Constraint("Vertical", 1, 2, 4, 2),
    Sketcher.Constraint("Diameter", 6, Q("0.192 in")),
    Sketcher.Constraint("Angle", 1, Q("150 deg")),
    Sketcher.Constraint("DistanceX", 2, 2, 0, 2, Q("0.33 in")),
    Sketcher.Constraint("DistanceY", 0, 1, 0, 2, Q("4.83935 mm")),
    Sketcher.Constraint("DistanceX", 6, 3, -1, 1, Q("69.429079 mm")),
    Sketcher.Constraint("DistanceY", 6, 3, -1, 1, Q("227.778661 mm")),
    Sketcher.Constraint("DistanceY", 1, 2, -1, 1, Q("222.939311 mm")),
])
sketch3.setExpression("Constraints[14]", "Params.sketch3_diameter")
pocket2 = body.newObject("PartDesign::Pocket", "Pocket001")
pocket2.Profile = sketch3
pocket2.setExpression("Length", "Params.pocket2_length")
pocket2.Reversed = True

# Sketch on YZ plane
sketch4 = body.newObject("Sketcher::SketchObject", "Sketch003")
sketch4.AttachmentSupport = (doc.getObject("YZ_Plane"), [""])
sketch4.MapMode = "FlatFace"
sketch4.addGeometry([
    Part.Circle(App.Vector(-54.1, -201.8, 0), App.Vector(0, 0, 1), 2.5),
    Part.Circle(App.Vector(-41.2, -179.9, 0), App.Vector(0, 0, 1), 2.5),
], False)
sketch4.addConstraint([
    Sketcher.Constraint("Equal", 0, 1),
    Sketcher.Constraint("Diameter", 0, Q("0.197 in")),
    Sketcher.Constraint("DistanceX", 1, 3, -1, 1, Q("41.178861 mm")),
    Sketcher.Constraint("DistanceY", 1, 3, -1, 1, Q("179.933948 mm")),
    Sketcher.Constraint("DistanceY", 0, 3, 1, 3, Q("21.871869 mm")),
    Sketcher.Constraint("DistanceX", 0, 3, -1, 1, Q("54.093246 mm")),
])
sketch4.setExpression("Constraints[1]", "Params.sketch4_diameter")
pocket3 = body.newObject("PartDesign::Pocket", "Pocket002")
pocket3.Profile = sketch4
pocket3.Type = "ThroughAll"
pocket3.Reversed = True

# Sketch on YZ plane
sketch5 = body.newObject("Sketcher::SketchObject", "Sketch004")
sketch5.AttachmentSupport = (doc.getObject("YZ_Plane"), [""])
sketch5.MapMode = "FlatFace"
sketch5.AttachmentOffset = App.Placement(App.Vector(0, 0, 0.125 * 25.4), App.Rotation())
sketch5.addGeometry([
    Part.LineSegment(App.Vector(-28.6, -63.7, 0), App.Vector(-28.6, -58.7, 0)),  # 0
    Part.ArcOfCircle(Part.Circle(App.Vector(-31.8, -58.7, 0), App.Vector(0, 0, 1), 3.2), math.radians(0), math.radians(180)),  # 1
    Part.LineSegment(App.Vector(-34.9, -58.7, 0), App.Vector(-34.9, -63.7, 0)),  # 2
    Part.ArcOfCircle(Part.Circle(App.Vector(-31.8, -63.7, 0), App.Vector(0, 0, 1), 3.2), math.radians(180), math.radians(360)),  # 3
    Part.LineSegment(App.Vector(-28.6, -154.4, 0), App.Vector(-28.6, -149.4, 0)),  # 4
    Part.ArcOfCircle(Part.Circle(App.Vector(-31.8, -149.4, 0), App.Vector(0, 0, 1), 3.2), math.radians(0), math.radians(180)),  # 5
    Part.LineSegment(App.Vector(-34.9, -149.4, 0), App.Vector(-34.9, -154.4, 0)),  # 6
    Part.ArcOfCircle(Part.Circle(App.Vector(-31.8, -154.4, 0), App.Vector(0, 0, 1), 3.2), math.radians(180), math.radians(360)),  # 7
], False)
sketch5.addConstraint([
    Sketcher.Constraint("Tangent", 0, 2, 1, 1),
    Sketcher.Constraint("Tangent", 1, 2, 2, 1),
    Sketcher.Constraint("Tangent", 2, 2, 3, 1),
    Sketcher.Constraint("Tangent", 3, 2, 0, 1),
    Sketcher.Constraint("Tangent", 4, 2, 5, 1),
    Sketcher.Constraint("Tangent", 5, 2, 6, 1),
    Sketcher.Constraint("Tangent", 6, 2, 7, 1),
    Sketcher.Constraint("Tangent", 7, 2, 4, 1),
    Sketcher.Constraint("Vertical", 0),
    Sketcher.Constraint("Vertical", 2),
    Sketcher.Constraint("Vertical", 4),
    Sketcher.Constraint("Vertical", 6),
    Sketcher.Constraint("Equal", 3, 5),
    Sketcher.Constraint("Vertical", 3, 3, 5, 3),
    Sketcher.Constraint("Equal", 2, 4),
    Sketcher.Constraint("Radius", 1, Q("0.125 in")),
    Sketcher.Constraint("DistanceX", 1, 3, -1, 1, Q("1.25 in")),
    Sketcher.Constraint("DistanceY", 0, 1, 0, 2, Q("0.1949 in")),
    Sketcher.Constraint("DistanceY", 5, 3, 3, 3, Q("3.375 in")),
    Sketcher.Constraint("DistanceY", 1, 3, -1, 1, Q("58.74893 mm")),
])
sketch5.setExpression("Constraints[15]", "Params.sketch5_radius")
pocket4 = body.newObject("PartDesign::Pocket", "Pocket003")
pocket4.Profile = sketch5
pocket4.setExpression("Length", "Params.pocket4_length")
doc.recompute()

fillet = body.newObject("PartDesign::Fillet", "Fillet")
fillet.Base = (pocket4, edges_at(pocket4, [(1.587, -44.45, -169.863)]))
fillet.setExpression("Radius", "Params.fillet_radius")
doc.recompute()

fillet2 = body.newObject("PartDesign::Fillet", "Fillet001")
fillet2.Base = (fillet, edges_at(fillet, [(1.587, -22.225, -7.938)]))
fillet2.setExpression("Radius", "Params.fillet2_radius")
doc.recompute()

fillet3 = body.newObject("PartDesign::Fillet", "Fillet002")
fillet3.Base = (fillet2, edges_at(fillet2, [(1.587, -22.225, -163.445)]))
fillet3.setExpression("Radius", "Params.fillet3_radius")

doc.recompute()
